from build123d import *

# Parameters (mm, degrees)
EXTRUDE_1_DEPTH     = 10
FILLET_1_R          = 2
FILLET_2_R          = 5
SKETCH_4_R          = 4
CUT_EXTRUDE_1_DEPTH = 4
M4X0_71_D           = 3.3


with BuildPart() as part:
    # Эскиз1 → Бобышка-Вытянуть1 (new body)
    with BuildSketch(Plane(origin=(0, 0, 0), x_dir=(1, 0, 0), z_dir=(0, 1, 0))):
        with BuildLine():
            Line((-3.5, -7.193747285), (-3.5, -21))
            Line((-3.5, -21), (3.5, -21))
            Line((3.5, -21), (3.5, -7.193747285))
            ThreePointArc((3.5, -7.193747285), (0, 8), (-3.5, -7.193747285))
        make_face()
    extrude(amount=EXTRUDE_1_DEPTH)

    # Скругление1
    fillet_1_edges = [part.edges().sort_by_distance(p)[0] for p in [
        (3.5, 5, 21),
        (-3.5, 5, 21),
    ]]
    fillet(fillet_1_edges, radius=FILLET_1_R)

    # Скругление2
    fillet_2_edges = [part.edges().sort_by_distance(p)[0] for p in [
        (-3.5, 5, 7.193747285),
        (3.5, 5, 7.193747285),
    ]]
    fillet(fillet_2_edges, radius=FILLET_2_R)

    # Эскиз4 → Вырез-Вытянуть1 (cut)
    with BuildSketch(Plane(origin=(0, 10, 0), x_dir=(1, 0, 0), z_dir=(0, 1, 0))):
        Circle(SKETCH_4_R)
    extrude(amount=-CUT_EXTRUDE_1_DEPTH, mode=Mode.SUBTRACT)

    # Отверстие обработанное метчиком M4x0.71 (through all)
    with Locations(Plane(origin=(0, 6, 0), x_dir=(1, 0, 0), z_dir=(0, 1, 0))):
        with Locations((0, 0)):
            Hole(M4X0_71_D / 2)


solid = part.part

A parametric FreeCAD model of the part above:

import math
import FreeCAD as App
import Part
import Sketcher

V = App.Vector


def edges_at(feature, points):
    """Names of the edges that pass closest to the given points."""
    edges = feature.Shape.Edges
    near = lambda p: min(range(len(edges)), key=lambda i: edges[i].distToShape(Part.Vertex(*p))[0])
    return sorted({f"Edge{near(p) + 1}" for p in points})

doc = App.newDocument("Part")
body = doc.addObject("PartDesign::Body", "Body")

# Sketch on XZ plane
sketch1 = doc.addObject("Sketcher::SketchObject", "Sketch")
body.addObject(sketch1)
sketch1.AttachmentSupport = (doc.XZ_Plane, [""])
sketch1.MapMode = "FlatFace"
sketch1.addGeometry([
    Part.LineSegment(V(-4, 7, 0), V(-4, 21, 0)),
    Part.LineSegment(V(-4, 21, 0), V(4, 21, 0)),
    Part.LineSegment(V(4, 21, 0), V(4, 7, 0)),
    Part.ArcOfCircle(Part.Circle(V(0, 0, 0), V(0, 0, 1), 8), math.radians(116), math.radians(424)),
], False)
sketch1.addConstraint([
    Sketcher.Constraint("Coincident", 0, 2, 1, 1),
    Sketcher.Constraint("Coincident", 1, 2, 2, 1),
    Sketcher.Constraint("Coincident", 2, 2, 3, 2),
    Sketcher.Constraint("Coincident", 3, 1, 0, 1),
    Sketcher.Constraint("Vertical", 0),
    Sketcher.Constraint("Horizontal", 1),
    Sketcher.Constraint("Vertical", 2),
    Sketcher.Constraint("Coincident", 3, 3, -1, 1),
    Sketcher.Constraint("Horizontal", 2, 2, 3, 1),
    Sketcher.Constraint("Radius", 3, 8.0),
    Sketcher.Constraint("DistanceX", 1, 1, 1, 2, 7.0),
    Sketcher.Constraint("DistanceY", -1, 1, 0, 2, 21.0),
])
pad1 = doc.addObject("PartDesign::Pad", "Pad")
body.addObject(pad1)
pad1.Profile = sketch1
pad1.Length = 10
pad1.Reversed = True
doc.recompute()

fillet = doc.addObject("PartDesign::Fillet", "Fillet")
body.addObject(fillet)
fillet.Base = (pad1, edges_at(pad1, [(3.5, 5, 21), (-3.5, 5, 21)]))
fillet.Radius = 2
doc.recompute()

fillet2 = doc.addObject("PartDesign::Fillet", "Fillet001")
body.addObject(fillet2)
fillet2.Base = (fillet, edges_at(fillet, [(-3.5, 5, 7.194), (3.5, 5, 7.194)]))
fillet2.Radius = 5

# Sketch on XZ plane
sketch2 = doc.addObject("Sketcher::SketchObject", "Sketch001")
body.addObject(sketch2)
sketch2.AttachmentSupport = (doc.XZ_Plane, [""])
sketch2.MapMode = "FlatFace"
sketch2.AttachmentOffset = App.Placement(V(0, 0, -10), App.Rotation())
sketch2.addGeometry(Part.Circle(V(0, 0, 0), V(0, 0, 1), 4), False)
sketch2.addConstraint([
    Sketcher.Constraint("Coincident", 0, 3, -1, 1),
    Sketcher.Constraint("Diameter", 0, 8.0),
])
pocket1 = doc.addObject("PartDesign::Pocket", "Pocket")
body.addObject(pocket1)
pocket1.Profile = sketch2
pocket1.Length = 4
pocket1.Reversed = True

# Sketch on XZ plane
sketch3 = doc.addObject("Sketcher::SketchObject", "Sketch002")
body.addObject(sketch3)
sketch3.AttachmentSupport = (doc.XZ_Plane, [""])
sketch3.MapMode = "FlatFace"
sketch3.AttachmentOffset = App.Placement(V(0, 0, -6), App.Rotation())
sketch3.addGeometry(Part.Circle(V(0, 0, 0), V(0, 0, 1), 1.6), False)
sketch3.addConstraint([
    Sketcher.Constraint("Coincident", 0, 3, -1, 1),
    Sketcher.Constraint("Diameter", 0, 3.3),
])
doc.recompute()
hole = doc.addObject("PartDesign::Hole", "Hole")
body.addObject(hole)
hole.Profile = sketch3
hole.ThreadType = "None"
hole.Diameter = 3.3
hole.DepthType = "ThroughAll"
hole.Reversed = True

doc.recompute()
